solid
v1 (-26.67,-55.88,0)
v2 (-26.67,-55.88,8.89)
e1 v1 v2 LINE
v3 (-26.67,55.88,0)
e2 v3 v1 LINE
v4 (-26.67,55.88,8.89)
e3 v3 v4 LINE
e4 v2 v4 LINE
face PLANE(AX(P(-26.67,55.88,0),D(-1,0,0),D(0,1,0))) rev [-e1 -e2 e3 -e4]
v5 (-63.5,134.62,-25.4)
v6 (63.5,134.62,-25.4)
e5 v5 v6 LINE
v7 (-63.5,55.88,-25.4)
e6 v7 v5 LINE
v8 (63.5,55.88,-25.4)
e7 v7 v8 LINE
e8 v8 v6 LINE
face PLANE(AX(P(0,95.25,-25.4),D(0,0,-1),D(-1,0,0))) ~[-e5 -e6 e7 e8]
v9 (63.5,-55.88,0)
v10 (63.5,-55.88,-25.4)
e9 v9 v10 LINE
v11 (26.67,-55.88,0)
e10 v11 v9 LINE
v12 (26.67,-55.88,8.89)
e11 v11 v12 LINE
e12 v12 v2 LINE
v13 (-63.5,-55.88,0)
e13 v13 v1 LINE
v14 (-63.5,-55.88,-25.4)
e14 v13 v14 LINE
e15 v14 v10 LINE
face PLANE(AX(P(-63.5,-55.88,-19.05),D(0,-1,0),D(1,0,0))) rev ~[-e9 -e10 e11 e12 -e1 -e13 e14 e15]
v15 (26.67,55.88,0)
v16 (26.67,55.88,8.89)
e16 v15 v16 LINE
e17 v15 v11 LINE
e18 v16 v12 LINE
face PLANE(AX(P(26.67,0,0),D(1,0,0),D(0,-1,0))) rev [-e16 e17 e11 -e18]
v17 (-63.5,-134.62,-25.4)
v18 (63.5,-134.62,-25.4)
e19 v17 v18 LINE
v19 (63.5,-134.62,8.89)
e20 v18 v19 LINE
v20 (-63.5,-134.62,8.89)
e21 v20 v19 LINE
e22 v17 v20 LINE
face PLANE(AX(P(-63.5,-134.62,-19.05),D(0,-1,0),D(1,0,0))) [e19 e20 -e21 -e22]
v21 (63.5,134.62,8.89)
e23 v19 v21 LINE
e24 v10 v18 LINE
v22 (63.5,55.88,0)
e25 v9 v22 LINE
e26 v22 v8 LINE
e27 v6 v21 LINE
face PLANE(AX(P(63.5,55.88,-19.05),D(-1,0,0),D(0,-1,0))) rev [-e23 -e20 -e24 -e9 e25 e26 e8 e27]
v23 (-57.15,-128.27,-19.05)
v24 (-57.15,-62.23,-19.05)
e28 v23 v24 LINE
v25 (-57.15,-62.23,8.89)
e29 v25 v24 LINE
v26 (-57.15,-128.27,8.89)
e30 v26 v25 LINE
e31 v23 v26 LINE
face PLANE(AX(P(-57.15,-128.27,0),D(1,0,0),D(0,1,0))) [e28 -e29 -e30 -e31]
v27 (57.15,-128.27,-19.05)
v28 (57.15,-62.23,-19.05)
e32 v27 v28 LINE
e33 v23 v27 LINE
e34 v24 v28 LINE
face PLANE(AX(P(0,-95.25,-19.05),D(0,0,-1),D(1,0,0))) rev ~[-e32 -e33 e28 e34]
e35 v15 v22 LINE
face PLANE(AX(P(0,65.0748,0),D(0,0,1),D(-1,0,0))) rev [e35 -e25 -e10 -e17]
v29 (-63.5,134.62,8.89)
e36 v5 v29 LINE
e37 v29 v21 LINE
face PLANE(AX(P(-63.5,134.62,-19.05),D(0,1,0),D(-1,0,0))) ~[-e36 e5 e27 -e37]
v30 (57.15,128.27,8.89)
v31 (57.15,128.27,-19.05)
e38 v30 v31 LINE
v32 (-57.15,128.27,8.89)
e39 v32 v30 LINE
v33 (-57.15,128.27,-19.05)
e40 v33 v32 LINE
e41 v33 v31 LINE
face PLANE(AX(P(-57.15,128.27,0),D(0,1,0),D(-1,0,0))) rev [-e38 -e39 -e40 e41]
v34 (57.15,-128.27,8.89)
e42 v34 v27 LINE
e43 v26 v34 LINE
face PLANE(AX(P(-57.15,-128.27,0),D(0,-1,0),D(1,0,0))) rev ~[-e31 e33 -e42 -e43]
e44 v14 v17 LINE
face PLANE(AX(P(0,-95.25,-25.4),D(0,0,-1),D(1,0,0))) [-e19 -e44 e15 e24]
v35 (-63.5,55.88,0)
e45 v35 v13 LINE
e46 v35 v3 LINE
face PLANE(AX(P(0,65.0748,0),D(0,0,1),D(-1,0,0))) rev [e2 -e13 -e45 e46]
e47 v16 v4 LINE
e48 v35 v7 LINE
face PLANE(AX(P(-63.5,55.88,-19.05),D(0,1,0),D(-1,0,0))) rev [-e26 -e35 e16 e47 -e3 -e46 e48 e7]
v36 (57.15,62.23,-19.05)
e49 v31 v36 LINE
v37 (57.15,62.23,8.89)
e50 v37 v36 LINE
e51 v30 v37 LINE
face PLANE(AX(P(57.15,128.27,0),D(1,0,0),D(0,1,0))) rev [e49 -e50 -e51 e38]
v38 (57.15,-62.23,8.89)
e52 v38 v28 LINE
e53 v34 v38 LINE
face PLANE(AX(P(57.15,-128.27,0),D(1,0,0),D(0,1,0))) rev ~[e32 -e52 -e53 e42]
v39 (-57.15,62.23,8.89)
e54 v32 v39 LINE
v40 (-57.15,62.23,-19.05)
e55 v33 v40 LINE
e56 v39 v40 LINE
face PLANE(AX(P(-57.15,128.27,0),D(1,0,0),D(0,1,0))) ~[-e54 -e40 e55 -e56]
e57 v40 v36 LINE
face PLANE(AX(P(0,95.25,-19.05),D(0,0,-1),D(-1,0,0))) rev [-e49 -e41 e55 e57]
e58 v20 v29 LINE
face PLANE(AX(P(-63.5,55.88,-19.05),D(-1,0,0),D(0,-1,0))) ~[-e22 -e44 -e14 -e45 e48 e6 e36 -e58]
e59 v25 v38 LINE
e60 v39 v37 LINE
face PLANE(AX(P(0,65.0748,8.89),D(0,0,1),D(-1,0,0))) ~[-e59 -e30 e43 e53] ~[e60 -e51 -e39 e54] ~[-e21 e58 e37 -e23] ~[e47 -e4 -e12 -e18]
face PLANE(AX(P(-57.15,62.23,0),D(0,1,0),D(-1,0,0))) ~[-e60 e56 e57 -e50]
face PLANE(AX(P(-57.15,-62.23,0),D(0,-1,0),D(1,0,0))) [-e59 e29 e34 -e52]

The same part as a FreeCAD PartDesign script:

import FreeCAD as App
import Part
import Sketcher

V = App.Vector
Q = App.Units.Quantity


def add_polygon(sketch, points):
    """Adds a closed chain of lines whose ends are joined by coincident constraints."""
    first, n = sketch.GeometryCount, len(points)
    for a, b in zip(points, points[1:] + points[:1]):
        sketch.addGeometry(Part.LineSegment(App.Vector(*a, 0), App.Vector(*b, 0)), False)
    for i in range(n):
        sketch.addConstraint(Sketcher.Constraint("Coincident", first + i, 2, first + (i + 1) % n, 1))

doc = App.newDocument("Part")
body = doc.addObject("PartDesign::Body", "Body")

# Sketch on XY plane
sketch1 = body.newObject("Sketcher::SketchObject", "Sketch")
sketch1.AttachmentSupport = (doc.getObject("XY_Plane"), [""])
sketch1.MapMode = "FlatFace"
add_polygon(sketch1, [(-63.5, 0), (-63.5, -134.62), (63.5, -134.62), (63.5, 0), (26.67, 0), (26.67, -55.88), (-26.67, -55.88), (-26.67, 0)])  # lines 0-7
add_polygon(sketch1, [(57.15, -128.27), (-57.15, -128.27), (-57.15, -62.23), (57.15, -62.23)])  # lines 8-11
sketch1.addConstraint(Sketcher.Constraint("Vertical", 0))
sketch1.addConstraint(Sketcher.Constraint("Horizontal", 1))
sketch1.addConstraint(Sketcher.Constraint("Vertical", 2))
sketch1.addConstraint(Sketcher.Constraint("Horizontal", 3))
sketch1.addConstraint(Sketcher.Constraint("Vertical", 4))
sketch1.addConstraint(Sketcher.Constraint("Horizontal", 5))
sketch1.addConstraint(Sketcher.Constraint("Vertical", 6))
sketch1.addConstraint(Sketcher.Constraint("Horizontal", 7))
sketch1.addConstraint(Sketcher.Constraint("Horizontal", 8))
sketch1.addConstraint(Sketcher.Constraint("Vertical", 9))
sketch1.addConstraint(Sketcher.Constraint("Horizontal", 10))
sketch1.addConstraint(Sketcher.Constraint("Vertical", 11))
sketch1.addConstraint(Sketcher.Constraint("Symmetric", 3, 2, 6, 2, -1, 1))
sketch1.addConstraint(Sketcher.Constraint("Symmetric", 2, 2, 7, 2, -2))
sketch1.addConstraint(Sketcher.Constraint("DistanceX", 1, 1, 1, 2, Q("5 in")))
sketch1.addConstraint(Sketcher.Constraint("DistanceX", 5, 2, 5, 1, Q("2.1 in")))
sketch1.addConstraint(Sketcher.Constraint("DistanceX", 8, 2, 8, 1, Q("4.5 in")))
sketch1.addConstraint(Sketcher.Constraint("DistanceY", 0, 2, 0, 1, Q("5.3 in")))
sketch1.addConstraint(Sketcher.Constraint("DistanceY", 4, 2, 4, 1, Q("2.2 in")))
sketch1.addConstraint(Sketcher.Constraint("DistanceY", 9, 1, 9, 2, Q("2.6 in")))
sketch1.addConstraint(Sketcher.Constraint("DistanceX", 8, 2, 5, 2, Q("1.2 in")))
sketch1.addConstraint(Sketcher.Constraint("DistanceY", 8, 2, -1, 1, Q("5.05 in")))
pad1 = body.newObject("PartDesign::Pad", "Pad")
pad1.Profile = sketch1
pad1.Length = Q("0.35 in")

# Sketch on XY plane
sketch2 = body.newObject("Sketcher::SketchObject", "Sketch001")
sketch2.AttachmentSupport = (doc.getObject("XY_Plane"), [""])
sketch2.MapMode = "FlatFace"
add_polygon(sketch2, [(-63.5, -55.88), (-63.5, -134.62), (63.5, -134.62), (63.5, -55.88)])  # lines 0-3
add_polygon(sketch2, [(57.15, -128.27), (-57.15, -128.27), (-57.15, -62.23), (57.15, -62.23)])  # lines 4-7
sketch2.addConstraint(Sketcher.Constraint("Vertical", 0))
sketch2.addConstraint(Sketcher.Constraint("Horizontal", 1))
sketch2.addConstraint(Sketcher.Constraint("Vertical", 2))
sketch2.addConstraint(Sketcher.Constraint("Horizontal", 3))
sketch2.addConstraint(Sketcher.Constraint("Horizontal", 4))
sketch2.addConstraint(Sketcher.Constraint("Vertical", 5))
sketch2.addConstraint(Sketcher.Constraint("Horizontal", 6))
sketch2.addConstraint(Sketcher.Constraint("Vertical", 7))
sketch2.addConstraint(Sketcher.Constraint("DistanceX", 1, 1, 1, 2, Q("5 in")))
sketch2.addConstraint(Sketcher.Constraint("DistanceX", 4, 2, 4, 1, Q("4.5 in")))
sketch2.addConstraint(Sketcher.Constraint("DistanceY", 0, 2, 0, 1, Q("3.1 in")))
sketch2.addConstraint(Sketcher.Constraint("DistanceY", 5, 1, 5, 2, Q("2.6 in")))
sketch2.addConstraint(Sketcher.Constraint("DistanceX", 0, 2, -1, 1, Q("2.5 in")))
sketch2.addConstraint(Sketcher.Constraint("DistanceY", 0, 2, -1, 1, Q("5.3 in")))
sketch2.addConstraint(Sketcher.Constraint("DistanceX", 4, 2, -1, 1, Q("2.25 in")))
sketch2.addConstraint(Sketcher.Constraint("DistanceY", 4, 2, -1, 1, Q("5.05 in")))
pad2 = body.newObject("PartDesign::Pad", "Pad001")
pad2.Profile = sketch2
pad2.Length = Q("0.75 in")
pad2.Reversed = True

# Sketch on XY plane
sketch3 = body.newObject("Sketcher::SketchObject", "Sketch002")
sketch3.AttachmentSupport = (doc.getObject("XY_Plane"), [""])
sketch3.MapMode = "FlatFace"
sketch3.AttachmentOffset = App.Placement(V(0, 0, -0.75 * 25.4), App.Rotation())
add_polygon(sketch3, [(-63.5, -134.62), (-63.5, -55.88), (63.5, -55.88), (63.5, -134.62)])  # lines 0-3
sketch3.addConstraint(Sketcher.Constraint("Vertical", 0))
sketch3.addConstraint(Sketcher.Constraint("Horizontal", 1))
sketch3.addConstraint(Sketcher.Constraint("Vertical", 2))
sketch3.addConstraint(Sketcher.Constraint("Horizontal", 3))
sketch3.addConstraint(Sketcher.Constraint("DistanceX", 1, 1, 1, 2, Q("5 in")))
sketch3.addConstraint(Sketcher.Constraint("DistanceY", 0, 1, 0, 2, Q("3.1 in")))
sketch3.addConstraint(Sketcher.Constraint("DistanceX", 0, 2, -1, 1, Q("2.5 in")))
sketch3.addConstraint(Sketcher.Constraint("DistanceY", 0, 2, -1, 1, Q("2.2 in")))
pad3 = body.newObject("PartDesign::Pad", "Pad002")
pad3.Profile = sketch3
pad3.Length = Q("0.25 in")
pad3.Reversed = True
body2 = doc.addObject("PartDesign::Body", "Body001")
doc.recompute()

body2.BaseFeature = body
doc.recompute()

mirroring = doc.addObject("Part::Mirroring", "Mirroring")
mirroring.Source = body
mirroring.Base = V(0, 0, 0)
mirroring.Normal = V(0, -1, 0)
body3 = doc.addObject("PartDesign::Body", "Body002")
body3.BaseFeature = mirroring
boolean = body2.newObject("PartDesign::Boolean", "Boolean")
boolean.Type = "Fuse"
boolean.addObjects([body3])
doc.recompute()
mirroring.Visibility = False

doc.recompute()
